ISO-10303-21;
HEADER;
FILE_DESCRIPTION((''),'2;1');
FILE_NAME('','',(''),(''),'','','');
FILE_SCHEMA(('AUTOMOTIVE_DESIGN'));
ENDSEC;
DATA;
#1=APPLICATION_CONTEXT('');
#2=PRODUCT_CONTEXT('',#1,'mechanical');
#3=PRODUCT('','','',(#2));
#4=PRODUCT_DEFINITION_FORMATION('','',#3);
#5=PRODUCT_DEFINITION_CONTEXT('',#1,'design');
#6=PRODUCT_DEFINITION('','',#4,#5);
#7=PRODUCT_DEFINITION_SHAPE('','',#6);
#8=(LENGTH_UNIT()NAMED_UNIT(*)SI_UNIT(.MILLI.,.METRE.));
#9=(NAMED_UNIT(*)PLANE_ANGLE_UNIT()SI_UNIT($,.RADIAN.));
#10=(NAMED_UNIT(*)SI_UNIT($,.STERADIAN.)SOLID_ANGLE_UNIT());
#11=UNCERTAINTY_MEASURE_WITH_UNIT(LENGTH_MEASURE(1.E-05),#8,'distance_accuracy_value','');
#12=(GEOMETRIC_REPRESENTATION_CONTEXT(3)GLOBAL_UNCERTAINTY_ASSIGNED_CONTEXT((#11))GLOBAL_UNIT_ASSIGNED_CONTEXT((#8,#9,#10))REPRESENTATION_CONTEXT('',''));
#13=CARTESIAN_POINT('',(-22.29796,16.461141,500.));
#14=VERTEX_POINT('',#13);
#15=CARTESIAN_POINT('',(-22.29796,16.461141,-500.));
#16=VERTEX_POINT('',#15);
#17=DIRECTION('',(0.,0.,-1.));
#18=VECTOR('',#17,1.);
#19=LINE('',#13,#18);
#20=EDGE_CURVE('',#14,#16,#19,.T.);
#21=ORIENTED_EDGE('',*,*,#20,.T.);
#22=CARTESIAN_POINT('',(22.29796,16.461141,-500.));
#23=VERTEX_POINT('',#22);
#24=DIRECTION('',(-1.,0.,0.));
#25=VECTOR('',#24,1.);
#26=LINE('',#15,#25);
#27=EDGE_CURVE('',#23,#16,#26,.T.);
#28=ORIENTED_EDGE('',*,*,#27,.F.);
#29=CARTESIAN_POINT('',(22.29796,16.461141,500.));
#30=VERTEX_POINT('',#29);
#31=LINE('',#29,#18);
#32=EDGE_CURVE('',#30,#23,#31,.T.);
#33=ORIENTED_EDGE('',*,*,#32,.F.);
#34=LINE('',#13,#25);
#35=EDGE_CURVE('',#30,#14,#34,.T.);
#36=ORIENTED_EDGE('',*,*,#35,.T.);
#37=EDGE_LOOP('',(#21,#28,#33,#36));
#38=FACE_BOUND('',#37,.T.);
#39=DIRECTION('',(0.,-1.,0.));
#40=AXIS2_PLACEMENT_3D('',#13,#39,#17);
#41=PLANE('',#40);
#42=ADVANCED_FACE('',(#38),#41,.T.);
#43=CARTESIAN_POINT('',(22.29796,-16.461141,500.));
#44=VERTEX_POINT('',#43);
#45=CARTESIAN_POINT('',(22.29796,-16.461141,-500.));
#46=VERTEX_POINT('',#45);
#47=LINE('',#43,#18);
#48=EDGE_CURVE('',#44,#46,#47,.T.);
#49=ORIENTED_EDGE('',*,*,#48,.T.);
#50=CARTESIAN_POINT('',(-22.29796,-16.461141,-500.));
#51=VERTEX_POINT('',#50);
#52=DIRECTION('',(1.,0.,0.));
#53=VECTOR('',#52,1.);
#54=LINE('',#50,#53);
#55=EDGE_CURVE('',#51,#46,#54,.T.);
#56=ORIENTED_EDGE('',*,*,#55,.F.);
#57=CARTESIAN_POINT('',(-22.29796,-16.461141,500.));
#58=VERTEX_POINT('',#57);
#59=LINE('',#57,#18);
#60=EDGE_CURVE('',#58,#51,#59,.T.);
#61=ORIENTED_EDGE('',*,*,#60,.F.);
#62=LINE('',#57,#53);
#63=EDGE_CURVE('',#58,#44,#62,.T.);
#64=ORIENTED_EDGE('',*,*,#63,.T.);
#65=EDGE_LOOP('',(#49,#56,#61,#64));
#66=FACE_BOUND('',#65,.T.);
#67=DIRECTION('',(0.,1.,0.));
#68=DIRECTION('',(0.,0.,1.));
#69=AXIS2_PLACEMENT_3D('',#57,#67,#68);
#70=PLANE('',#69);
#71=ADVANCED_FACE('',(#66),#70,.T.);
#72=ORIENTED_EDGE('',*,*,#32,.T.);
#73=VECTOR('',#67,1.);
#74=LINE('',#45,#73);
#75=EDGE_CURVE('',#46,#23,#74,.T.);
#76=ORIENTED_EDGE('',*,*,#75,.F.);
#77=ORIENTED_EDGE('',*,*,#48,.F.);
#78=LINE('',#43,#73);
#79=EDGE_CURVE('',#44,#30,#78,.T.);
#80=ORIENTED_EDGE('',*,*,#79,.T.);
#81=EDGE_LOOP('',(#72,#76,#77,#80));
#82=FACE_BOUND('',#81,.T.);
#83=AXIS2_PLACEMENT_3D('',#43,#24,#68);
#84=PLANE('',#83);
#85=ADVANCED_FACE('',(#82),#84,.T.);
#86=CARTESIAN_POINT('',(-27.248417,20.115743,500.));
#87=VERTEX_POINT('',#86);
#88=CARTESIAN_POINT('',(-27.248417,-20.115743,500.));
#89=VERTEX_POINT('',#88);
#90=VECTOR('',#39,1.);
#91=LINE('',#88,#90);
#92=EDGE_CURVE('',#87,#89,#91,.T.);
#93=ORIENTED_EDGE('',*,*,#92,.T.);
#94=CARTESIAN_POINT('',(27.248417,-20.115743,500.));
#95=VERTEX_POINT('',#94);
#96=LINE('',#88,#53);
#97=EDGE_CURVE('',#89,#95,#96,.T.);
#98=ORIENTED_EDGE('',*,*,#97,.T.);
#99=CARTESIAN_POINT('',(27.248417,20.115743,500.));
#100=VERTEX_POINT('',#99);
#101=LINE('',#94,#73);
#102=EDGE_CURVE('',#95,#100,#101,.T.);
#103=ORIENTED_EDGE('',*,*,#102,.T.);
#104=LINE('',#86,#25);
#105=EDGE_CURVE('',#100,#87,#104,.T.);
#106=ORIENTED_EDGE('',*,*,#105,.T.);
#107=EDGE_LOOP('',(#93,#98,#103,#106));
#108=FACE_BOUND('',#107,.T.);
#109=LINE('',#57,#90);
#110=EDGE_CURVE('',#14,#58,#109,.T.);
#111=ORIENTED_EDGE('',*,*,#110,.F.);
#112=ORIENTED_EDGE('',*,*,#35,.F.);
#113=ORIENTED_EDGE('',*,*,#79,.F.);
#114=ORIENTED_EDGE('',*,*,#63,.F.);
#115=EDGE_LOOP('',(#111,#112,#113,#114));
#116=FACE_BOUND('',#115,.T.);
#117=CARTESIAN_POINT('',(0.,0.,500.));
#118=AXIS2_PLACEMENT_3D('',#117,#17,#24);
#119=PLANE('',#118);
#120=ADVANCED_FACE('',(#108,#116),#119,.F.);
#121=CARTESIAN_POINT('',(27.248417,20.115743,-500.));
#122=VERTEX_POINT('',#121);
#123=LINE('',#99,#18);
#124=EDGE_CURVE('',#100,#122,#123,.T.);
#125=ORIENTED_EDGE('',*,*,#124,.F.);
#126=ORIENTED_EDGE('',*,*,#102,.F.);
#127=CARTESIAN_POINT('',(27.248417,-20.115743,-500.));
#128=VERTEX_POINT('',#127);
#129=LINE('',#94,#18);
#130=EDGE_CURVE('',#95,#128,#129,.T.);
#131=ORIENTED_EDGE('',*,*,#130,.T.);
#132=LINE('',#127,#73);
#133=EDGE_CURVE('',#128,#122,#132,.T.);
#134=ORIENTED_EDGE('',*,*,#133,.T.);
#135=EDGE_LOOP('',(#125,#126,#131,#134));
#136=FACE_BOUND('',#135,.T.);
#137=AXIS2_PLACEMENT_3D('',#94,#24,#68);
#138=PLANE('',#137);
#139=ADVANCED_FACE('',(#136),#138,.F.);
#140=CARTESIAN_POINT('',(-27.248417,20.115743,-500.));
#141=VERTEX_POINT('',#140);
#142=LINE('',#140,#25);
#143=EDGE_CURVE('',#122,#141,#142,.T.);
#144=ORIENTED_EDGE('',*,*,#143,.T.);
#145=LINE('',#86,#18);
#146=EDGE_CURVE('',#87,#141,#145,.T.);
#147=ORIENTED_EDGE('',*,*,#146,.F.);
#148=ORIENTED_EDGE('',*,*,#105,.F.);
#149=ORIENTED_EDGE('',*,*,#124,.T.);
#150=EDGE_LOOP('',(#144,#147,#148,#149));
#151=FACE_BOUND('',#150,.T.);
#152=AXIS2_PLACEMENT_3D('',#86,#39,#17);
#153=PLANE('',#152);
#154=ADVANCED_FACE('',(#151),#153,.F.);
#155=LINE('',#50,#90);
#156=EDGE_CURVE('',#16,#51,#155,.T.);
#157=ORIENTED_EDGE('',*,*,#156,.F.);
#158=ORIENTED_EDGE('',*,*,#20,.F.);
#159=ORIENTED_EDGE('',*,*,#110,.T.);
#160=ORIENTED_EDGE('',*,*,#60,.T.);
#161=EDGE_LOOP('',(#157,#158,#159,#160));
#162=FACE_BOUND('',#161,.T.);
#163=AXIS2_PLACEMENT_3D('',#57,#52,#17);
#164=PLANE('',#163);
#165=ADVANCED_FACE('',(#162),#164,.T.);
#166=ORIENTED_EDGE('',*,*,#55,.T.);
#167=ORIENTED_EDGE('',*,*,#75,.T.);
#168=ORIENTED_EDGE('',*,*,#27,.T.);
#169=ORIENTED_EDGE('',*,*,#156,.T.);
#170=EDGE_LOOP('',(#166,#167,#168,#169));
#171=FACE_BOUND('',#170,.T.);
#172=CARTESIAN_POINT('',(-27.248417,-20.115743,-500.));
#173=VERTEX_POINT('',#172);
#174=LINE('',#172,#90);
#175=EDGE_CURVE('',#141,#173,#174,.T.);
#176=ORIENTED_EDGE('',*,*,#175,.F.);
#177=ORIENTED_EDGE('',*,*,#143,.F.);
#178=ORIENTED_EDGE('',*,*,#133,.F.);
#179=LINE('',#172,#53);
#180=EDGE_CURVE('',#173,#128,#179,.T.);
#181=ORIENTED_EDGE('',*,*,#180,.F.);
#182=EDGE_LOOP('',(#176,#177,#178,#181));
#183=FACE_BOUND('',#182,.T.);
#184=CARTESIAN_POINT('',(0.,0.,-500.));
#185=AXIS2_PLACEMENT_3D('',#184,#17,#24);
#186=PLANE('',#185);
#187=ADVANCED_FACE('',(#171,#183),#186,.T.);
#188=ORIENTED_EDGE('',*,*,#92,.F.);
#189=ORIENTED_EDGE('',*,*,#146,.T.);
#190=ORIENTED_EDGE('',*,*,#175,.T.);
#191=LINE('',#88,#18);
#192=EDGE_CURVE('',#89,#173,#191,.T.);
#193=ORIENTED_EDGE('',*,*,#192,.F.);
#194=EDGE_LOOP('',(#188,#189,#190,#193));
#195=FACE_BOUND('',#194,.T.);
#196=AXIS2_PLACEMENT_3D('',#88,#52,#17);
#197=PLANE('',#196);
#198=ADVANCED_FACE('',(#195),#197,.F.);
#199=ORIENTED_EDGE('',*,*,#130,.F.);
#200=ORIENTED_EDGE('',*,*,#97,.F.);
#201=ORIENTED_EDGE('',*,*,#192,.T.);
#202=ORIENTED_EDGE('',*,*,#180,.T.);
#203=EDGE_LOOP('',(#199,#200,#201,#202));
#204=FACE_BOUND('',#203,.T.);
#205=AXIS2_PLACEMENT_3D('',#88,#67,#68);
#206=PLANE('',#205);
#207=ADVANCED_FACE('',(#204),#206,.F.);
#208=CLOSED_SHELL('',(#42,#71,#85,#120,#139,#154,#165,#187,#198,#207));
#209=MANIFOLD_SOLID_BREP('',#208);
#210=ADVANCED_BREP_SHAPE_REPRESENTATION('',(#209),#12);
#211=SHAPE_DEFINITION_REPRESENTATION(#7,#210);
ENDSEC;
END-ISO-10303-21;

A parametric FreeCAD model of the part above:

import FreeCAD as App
import Part
import Sketcher
from FreeCAD import Vector
Q = App.Units.Quantity

doc = App.newDocument("Part")
body = doc.addObject("PartDesign::Body", "Body")

# Sketch on XY plane
sketch1 = body.newObject("Sketcher::SketchObject", "Sketch")
sketch1.AttachmentSupport = (doc.getObject("XY_Plane"), [""])
sketch1.MapMode = "FlatFace"
sketch1.addGeometry(Part.LineSegment(Vector(-27.248417, 20.115743, 0), Vector(-27.248417, -20.115743, 0)), False)
sketch1.addGeometry(Part.LineSegment(Vector(-27.248417, -20.115743, 0), Vector(27.248417, -20.115743, 0)), False)
sketch1.addGeometry(Part.LineSegment(Vector(27.248417, -20.115743, 0), Vector(27.248417, 20.115743, 0)), False)
sketch1.addGeometry(Part.LineSegment(Vector(27.248417, 20.115743, 0), Vector(-27.248417, 20.115743, 0)), False)
sketch1.addGeometry(Part.LineSegment(Vector(22.29796, -16.461141, 0), Vector(-22.29796, -16.461141, 0)), False)
sketch1.addGeometry(Part.LineSegment(Vector(-22.29796, -16.461141, 0), Vector(-22.29796, 16.461141, 0)), False)
sketch1.addGeometry(Part.LineSegment(Vector(-22.29796, 16.461141, 0), Vector(22.29796, 16.461141, 0)), False)
sketch1.addGeometry(Part.LineSegment(Vector(22.29796, 16.461141, 0), Vector(22.29796, -16.461141, 0)), False)
sketch1.addConstraint(Sketcher.Constraint("Coincident", 0, 2, 1, 1))
sketch1.addConstraint(Sketcher.Constraint("Coincident", 1, 2, 2, 1))
sketch1.addConstraint(Sketcher.Constraint("Coincident", 2, 2, 3, 1))
sketch1.addConstraint(Sketcher.Constraint("Coincident", 3, 2, 0, 1))
sketch1.addConstraint(Sketcher.Constraint("Coincident", 4, 2, 5, 1))
sketch1.addConstraint(Sketcher.Constraint("Coincident", 5, 2, 6, 1))
sketch1.addConstraint(Sketcher.Constraint("Coincident", 6, 2, 7, 1))
sketch1.addConstraint(Sketcher.Constraint("Coincident", 7, 2, 4, 1))
sketch1.addConstraint(Sketcher.Constraint("Vertical", 0))
sketch1.addConstraint(Sketcher.Constraint("Horizontal", 1))
sketch1.addConstraint(Sketcher.Constraint("Vertical", 2))
sketch1.addConstraint(Sketcher.Constraint("Horizontal", 3))
sketch1.addConstraint(Sketcher.Constraint("Horizontal", 4))
sketch1.addConstraint(Sketcher.Constraint("Vertical", 5))
sketch1.addConstraint(Sketcher.Constraint("Horizontal", 6))
sketch1.addConstraint(Sketcher.Constraint("Vertical", 7))
sketch1.addConstraint(Sketcher.Constraint("Symmetric", 0, 2, 2, 2, -1, 1))
sketch1.addConstraint(Sketcher.Constraint("Symmetric", 4, 2, 6, 2, -1, 1))
sketch1.addConstraint(Sketcher.Constraint("DistanceX", 4, 2, 4, 1, Q("44.59592 mm")))
sketch1.addConstraint(Sketcher.Constraint("DistanceY", 5, 1, 5, 2, Q("32.922282 mm")))
sketch1.addConstraint(Sketcher.Constraint("DistanceX", 1, 1, 1, 2, Q("54.496835 mm")))
sketch1.addConstraint(Sketcher.Constraint("DistanceY", 0, 2, 0, 1, Q("40.231487 mm")))
pad1 = body.newObject("PartDesign::Pad", "Pad")
pad1.Profile = sketch1
pad1.Length = 1000
pad1.Midplane = True

doc.recompute()
